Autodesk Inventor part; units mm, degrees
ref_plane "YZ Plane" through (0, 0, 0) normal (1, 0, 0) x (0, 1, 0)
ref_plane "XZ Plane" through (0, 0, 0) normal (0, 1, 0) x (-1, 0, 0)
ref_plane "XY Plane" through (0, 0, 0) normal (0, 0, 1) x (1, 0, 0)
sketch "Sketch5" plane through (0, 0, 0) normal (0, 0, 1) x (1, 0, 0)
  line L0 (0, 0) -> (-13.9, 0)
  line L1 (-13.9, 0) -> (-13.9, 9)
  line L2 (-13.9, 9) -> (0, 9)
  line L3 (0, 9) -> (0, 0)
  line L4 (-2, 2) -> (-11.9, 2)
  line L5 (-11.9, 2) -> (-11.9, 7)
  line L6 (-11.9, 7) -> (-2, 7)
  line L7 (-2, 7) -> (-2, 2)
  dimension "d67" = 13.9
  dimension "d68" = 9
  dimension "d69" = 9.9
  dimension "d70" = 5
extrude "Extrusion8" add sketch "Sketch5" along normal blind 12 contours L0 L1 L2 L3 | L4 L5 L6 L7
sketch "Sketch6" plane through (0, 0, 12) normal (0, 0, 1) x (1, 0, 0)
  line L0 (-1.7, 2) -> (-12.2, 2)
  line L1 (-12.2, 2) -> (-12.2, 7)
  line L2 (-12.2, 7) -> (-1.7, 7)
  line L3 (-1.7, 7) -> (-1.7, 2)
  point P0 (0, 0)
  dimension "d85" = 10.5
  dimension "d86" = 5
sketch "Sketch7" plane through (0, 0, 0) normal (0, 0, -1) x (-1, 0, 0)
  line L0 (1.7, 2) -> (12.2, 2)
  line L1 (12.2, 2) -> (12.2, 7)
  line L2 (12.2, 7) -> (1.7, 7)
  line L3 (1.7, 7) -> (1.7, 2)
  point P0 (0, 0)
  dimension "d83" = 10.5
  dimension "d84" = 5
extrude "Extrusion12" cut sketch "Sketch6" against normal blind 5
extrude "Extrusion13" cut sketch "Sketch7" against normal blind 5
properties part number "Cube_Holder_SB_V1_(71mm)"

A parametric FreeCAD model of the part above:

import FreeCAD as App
import Part
import Sketcher
from FreeCAD import Vector


def add_polygon(sketch, points):
    """Adds a closed chain of lines whose ends are joined by coincident constraints."""
    first, n = sketch.GeometryCount, len(points)
    for a, b in zip(points, points[1:] + points[:1]):
        sketch.addGeometry(Part.LineSegment(App.Vector(*a, 0), App.Vector(*b, 0)), False)
    for i in range(n):
        sketch.addConstraint(Sketcher.Constraint("Coincident", first + i, 2, first + (i + 1) % n, 1))

doc = App.newDocument("Part")
params = doc.addObject("Spreadsheet::Sheet", "Params")
for row, (alias, value) in enumerate([
    ("sketch1_height", "9 mm"),
    ("sketch1_width", "13.9 mm"),
    ("pad1_length", "12 mm"),
    ("sketch2_height", "5 mm"),
    ("sketch2_width", "10.5 mm"),
    ("pocket1_length", "5 mm"),
    ("sketch3_height", "5 mm"),
    ("sketch3_width", "10.5 mm"),
    ("pocket2_length", "5 mm"),
], start=1):
    params.set(f"A{row}", alias)
    params.set(f"B{row}", "=" + value)
    params.setAlias(f"B{row}", alias)

body = doc.addObject("PartDesign::Body", "Body")

# Sketch on XY plane
sketch1 = body.newObject("Sketcher::SketchObject", "Sketch")
sketch1.AttachmentSupport = (doc.getObject("XY_Plane"), [""])
sketch1.MapMode = "FlatFace"
add_polygon(sketch1, [(-14, 0), (0, 0), (0, 9), (-14, 9)])  # lines 0-3
sketch1.addConstraint(Sketcher.Constraint("Horizontal", 0))
sketch1.addConstraint(Sketcher.Constraint("Vertical", 1))
sketch1.addConstraint(Sketcher.Constraint("Horizontal", 2))
sketch1.addConstraint(Sketcher.Constraint("Vertical", 3))
sketch1.addConstraint(Sketcher.Constraint("Coincident", 0, 2, -1, 1))
sketch1.addConstraint(Sketcher.Constraint("DistanceY", 1, 1, 1, 2, 9.0))
sketch1.addConstraint(Sketcher.Constraint("DistanceX", 0, 1, 0, 2, 13.9))
sketch1.setExpression("Constraints[9]", "Params.sketch1_height")
sketch1.setExpression("Constraints[10]", "Params.sketch1_width")
pad1 = body.newObject("PartDesign::Pad", "Pad")
pad1.Profile = sketch1
pad1.setExpression("Length", "Params.pad1_length")

# Sketch on XY plane
sketch2 = body.newObject("Sketcher::SketchObject", "Sketch001")
sketch2.AttachmentSupport = (doc.getObject("XY_Plane"), [""])
sketch2.MapMode = "FlatFace"
sketch2.AttachmentOffset = App.Placement(Vector(0, 0, 12), App.Rotation())
add_polygon(sketch2, [(-12, 2), (-2, 2), (-2, 7), (-12, 7)])  # lines 0-3
sketch2.addConstraint(Sketcher.Constraint("Horizontal", 0))
sketch2.addConstraint(Sketcher.Constraint("Vertical", 1))
sketch2.addConstraint(Sketcher.Constraint("Horizontal", 2))
sketch2.addConstraint(Sketcher.Constraint("Vertical", 3))
sketch2.addConstraint(Sketcher.Constraint("DistanceY", 1, 1, 1, 2, 5.0))
sketch2.addConstraint(Sketcher.Constraint("DistanceX", 0, 1, 0, 2, 10.5))
sketch2.addConstraint(Sketcher.Constraint("DistanceY", -1, 1, 0, 2, 2.0))
sketch2.addConstraint(Sketcher.Constraint("DistanceX", 0, 2, -1, 1, 1.7))
sketch2.setExpression("Constraints[8]", "Params.sketch2_height")
sketch2.setExpression("Constraints[9]", "Params.sketch2_width")
pocket1 = body.newObject("PartDesign::Pocket", "Pocket")
pocket1.Profile = sketch2
pocket1.setExpression("Length", "Params.pocket1_length")

# Sketch on XY plane
sketch3 = body.newObject("Sketcher::SketchObject", "Sketch002")
sketch3.AttachmentSupport = (doc.getObject("XY_Plane"), [""])
sketch3.MapMode = "FlatFace"
add_polygon(sketch3, [(-2, 7), (-2, 2), (-12, 2), (-12, 7)])  # lines 0-3
sketch3.addConstraint(Sketcher.Constraint("Vertical", 0))
sketch3.addConstraint(Sketcher.Constraint("Horizontal", 1))
sketch3.addConstraint(Sketcher.Constraint("Vertical", 2))
sketch3.addConstraint(Sketcher.Constraint("Horizontal", 3))
sketch3.addConstraint(Sketcher.Constraint("DistanceY", 0, 2, 0, 1, 5.0))
sketch3.addConstraint(Sketcher.Constraint("DistanceX", 1, 2, 1, 1, 10.5))
sketch3.addConstraint(Sketcher.Constraint("DistanceY", -1, 1, 0, 2, 2.0))
sketch3.addConstraint(Sketcher.Constraint("DistanceX", 0, 2, -1, 1, 1.7))
sketch3.setExpression("Constraints[8]", "Params.sketch3_height")
sketch3.setExpression("Constraints[9]", "Params.sketch3_width")
pocket2 = body.newObject("PartDesign::Pocket", "Pocket001")
pocket2.Profile = sketch3
pocket2.setExpression("Length", "Params.pocket2_length")
pocket2.Reversed = True

doc.recompute()
